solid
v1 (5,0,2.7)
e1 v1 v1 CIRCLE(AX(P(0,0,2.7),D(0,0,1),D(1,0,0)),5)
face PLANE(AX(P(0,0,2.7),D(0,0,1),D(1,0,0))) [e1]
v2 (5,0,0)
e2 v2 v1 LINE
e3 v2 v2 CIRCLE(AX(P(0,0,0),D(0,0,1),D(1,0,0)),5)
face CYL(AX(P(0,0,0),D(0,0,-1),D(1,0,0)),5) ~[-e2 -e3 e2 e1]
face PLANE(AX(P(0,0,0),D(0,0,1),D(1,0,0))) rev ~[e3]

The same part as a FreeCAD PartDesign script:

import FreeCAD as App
import Part
import Sketcher

V = App.Vector

doc = App.newDocument("Part")
body = doc.addObject("PartDesign::Body", "Body")

# Sketch on XY plane
sketch1 = body.newObject("Sketcher::SketchObject", "Sketch")
sketch1.AttachmentSupport = (doc.getObject("XY_Plane"), [""])
sketch1.MapMode = "FlatFace"
sketch1.addGeometry(Part.Circle(V(0, 0, 0), V(0, 0, 1), 5), False)
sketch1.addConstraint(Sketcher.Constraint("Coincident", 0, 3, -1, 1))
sketch1.addConstraint(Sketcher.Constraint("Diameter", 0, 10.0))
pad1 = body.newObject("PartDesign::Pad", "Pad")
pad1.Profile = sketch1
pad1.Length = 2.7

doc.recompute()
